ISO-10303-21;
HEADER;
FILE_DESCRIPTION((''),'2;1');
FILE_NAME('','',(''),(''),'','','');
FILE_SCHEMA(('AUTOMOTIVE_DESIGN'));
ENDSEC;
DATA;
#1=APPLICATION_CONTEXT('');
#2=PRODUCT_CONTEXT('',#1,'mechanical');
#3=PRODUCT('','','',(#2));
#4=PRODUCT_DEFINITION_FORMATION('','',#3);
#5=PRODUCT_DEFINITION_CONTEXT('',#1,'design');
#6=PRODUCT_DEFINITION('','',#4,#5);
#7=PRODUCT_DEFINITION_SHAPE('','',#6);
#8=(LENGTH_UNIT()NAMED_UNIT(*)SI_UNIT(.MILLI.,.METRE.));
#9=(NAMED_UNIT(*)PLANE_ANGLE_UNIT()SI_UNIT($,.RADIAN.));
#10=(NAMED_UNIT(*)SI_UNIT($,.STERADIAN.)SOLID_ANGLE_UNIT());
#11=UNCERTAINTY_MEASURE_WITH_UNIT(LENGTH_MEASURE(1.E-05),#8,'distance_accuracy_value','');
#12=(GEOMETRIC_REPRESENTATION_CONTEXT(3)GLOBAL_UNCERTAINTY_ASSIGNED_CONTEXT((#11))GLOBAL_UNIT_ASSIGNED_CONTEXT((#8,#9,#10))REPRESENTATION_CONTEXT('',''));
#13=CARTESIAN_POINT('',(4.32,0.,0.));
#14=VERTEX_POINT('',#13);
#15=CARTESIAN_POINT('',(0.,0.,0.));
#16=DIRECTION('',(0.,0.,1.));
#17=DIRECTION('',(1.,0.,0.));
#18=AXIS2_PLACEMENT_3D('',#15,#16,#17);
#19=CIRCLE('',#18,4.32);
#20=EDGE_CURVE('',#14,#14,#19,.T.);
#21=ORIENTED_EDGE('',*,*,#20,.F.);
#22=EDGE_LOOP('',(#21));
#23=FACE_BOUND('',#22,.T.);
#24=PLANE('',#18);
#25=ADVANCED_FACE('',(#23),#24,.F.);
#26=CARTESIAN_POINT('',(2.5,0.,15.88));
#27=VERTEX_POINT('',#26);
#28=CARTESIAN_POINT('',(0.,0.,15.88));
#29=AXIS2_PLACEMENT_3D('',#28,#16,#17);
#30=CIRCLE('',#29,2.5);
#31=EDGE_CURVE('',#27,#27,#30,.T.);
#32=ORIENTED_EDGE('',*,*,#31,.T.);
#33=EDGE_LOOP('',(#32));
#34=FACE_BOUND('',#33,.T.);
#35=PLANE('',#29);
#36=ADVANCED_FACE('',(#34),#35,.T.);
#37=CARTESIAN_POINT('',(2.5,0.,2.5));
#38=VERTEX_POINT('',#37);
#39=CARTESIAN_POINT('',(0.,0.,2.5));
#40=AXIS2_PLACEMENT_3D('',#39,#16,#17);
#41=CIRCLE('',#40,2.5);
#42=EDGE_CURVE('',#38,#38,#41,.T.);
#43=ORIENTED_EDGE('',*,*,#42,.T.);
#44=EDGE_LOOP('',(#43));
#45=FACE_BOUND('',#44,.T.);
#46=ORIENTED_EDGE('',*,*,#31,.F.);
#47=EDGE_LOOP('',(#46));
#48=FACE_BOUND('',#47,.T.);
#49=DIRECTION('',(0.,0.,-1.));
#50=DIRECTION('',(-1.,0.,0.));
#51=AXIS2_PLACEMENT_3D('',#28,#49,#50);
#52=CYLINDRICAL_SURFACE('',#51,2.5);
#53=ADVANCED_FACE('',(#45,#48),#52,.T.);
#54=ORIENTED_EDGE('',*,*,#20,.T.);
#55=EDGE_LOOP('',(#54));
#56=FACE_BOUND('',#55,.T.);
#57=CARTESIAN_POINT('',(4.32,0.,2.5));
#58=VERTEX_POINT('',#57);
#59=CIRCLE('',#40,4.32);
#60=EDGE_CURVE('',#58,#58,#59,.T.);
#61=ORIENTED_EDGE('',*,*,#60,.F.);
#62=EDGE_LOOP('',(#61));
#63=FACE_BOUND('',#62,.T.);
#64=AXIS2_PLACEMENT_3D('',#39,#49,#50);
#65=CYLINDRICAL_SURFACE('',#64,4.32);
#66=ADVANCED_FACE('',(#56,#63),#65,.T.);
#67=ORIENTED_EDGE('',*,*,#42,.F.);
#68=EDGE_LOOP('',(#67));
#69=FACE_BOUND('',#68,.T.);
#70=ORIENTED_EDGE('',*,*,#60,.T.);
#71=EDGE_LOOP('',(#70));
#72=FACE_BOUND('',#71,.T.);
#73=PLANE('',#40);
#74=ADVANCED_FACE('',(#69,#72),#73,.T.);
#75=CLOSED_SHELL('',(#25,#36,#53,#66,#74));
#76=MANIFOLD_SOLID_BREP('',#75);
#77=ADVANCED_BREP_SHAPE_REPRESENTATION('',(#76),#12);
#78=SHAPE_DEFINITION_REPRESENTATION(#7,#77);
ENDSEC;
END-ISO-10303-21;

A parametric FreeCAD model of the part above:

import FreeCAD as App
import Part
import Sketcher
from FreeCAD import Vector

doc = App.newDocument("Part")
body = doc.addObject("PartDesign::Body", "Body")

sketch1 = body.newObject("Sketcher::SketchObject", "Sketch")
sketch1.AttachmentSupport = (doc.getObject("XY_Plane"), [""])
sketch1.MapMode = "FlatFace"
sketch1.addGeometry(Part.Circle(Vector(0, 0, 0), Vector(0, 0, 1), 4.3), False)
sketch1.addConstraint([
    Sketcher.Constraint("Coincident", 0, 3, -1, 1),
    Sketcher.Constraint("Diameter", 0, 8.64),
])
pad1 = body.newObject("PartDesign::Pad", "Pad")
pad1.Profile = sketch1
pad1.Length = 2.5

sketch2 = body.newObject("Sketcher::SketchObject", "Sketch001")
sketch2.AttachmentSupport = (doc.getObject("XY_Plane"), [""])
sketch2.MapMode = "FlatFace"
sketch2.AttachmentOffset = App.Placement(Vector(0, 0, 2.5), App.Rotation())
sketch2.addGeometry(Part.Circle(Vector(0, 0, 0), Vector(0, 0, 1), 2.5), False)
sketch2.addConstraint([
    Sketcher.Constraint("Coincident", 0, 3, -1, 1),
    Sketcher.Constraint("Diameter", 0, 5.0),
])
pad2 = body.newObject("PartDesign::Pad", "Pad001")
pad2.Profile = sketch2
pad2.Length = 13.38

doc.recompute()
